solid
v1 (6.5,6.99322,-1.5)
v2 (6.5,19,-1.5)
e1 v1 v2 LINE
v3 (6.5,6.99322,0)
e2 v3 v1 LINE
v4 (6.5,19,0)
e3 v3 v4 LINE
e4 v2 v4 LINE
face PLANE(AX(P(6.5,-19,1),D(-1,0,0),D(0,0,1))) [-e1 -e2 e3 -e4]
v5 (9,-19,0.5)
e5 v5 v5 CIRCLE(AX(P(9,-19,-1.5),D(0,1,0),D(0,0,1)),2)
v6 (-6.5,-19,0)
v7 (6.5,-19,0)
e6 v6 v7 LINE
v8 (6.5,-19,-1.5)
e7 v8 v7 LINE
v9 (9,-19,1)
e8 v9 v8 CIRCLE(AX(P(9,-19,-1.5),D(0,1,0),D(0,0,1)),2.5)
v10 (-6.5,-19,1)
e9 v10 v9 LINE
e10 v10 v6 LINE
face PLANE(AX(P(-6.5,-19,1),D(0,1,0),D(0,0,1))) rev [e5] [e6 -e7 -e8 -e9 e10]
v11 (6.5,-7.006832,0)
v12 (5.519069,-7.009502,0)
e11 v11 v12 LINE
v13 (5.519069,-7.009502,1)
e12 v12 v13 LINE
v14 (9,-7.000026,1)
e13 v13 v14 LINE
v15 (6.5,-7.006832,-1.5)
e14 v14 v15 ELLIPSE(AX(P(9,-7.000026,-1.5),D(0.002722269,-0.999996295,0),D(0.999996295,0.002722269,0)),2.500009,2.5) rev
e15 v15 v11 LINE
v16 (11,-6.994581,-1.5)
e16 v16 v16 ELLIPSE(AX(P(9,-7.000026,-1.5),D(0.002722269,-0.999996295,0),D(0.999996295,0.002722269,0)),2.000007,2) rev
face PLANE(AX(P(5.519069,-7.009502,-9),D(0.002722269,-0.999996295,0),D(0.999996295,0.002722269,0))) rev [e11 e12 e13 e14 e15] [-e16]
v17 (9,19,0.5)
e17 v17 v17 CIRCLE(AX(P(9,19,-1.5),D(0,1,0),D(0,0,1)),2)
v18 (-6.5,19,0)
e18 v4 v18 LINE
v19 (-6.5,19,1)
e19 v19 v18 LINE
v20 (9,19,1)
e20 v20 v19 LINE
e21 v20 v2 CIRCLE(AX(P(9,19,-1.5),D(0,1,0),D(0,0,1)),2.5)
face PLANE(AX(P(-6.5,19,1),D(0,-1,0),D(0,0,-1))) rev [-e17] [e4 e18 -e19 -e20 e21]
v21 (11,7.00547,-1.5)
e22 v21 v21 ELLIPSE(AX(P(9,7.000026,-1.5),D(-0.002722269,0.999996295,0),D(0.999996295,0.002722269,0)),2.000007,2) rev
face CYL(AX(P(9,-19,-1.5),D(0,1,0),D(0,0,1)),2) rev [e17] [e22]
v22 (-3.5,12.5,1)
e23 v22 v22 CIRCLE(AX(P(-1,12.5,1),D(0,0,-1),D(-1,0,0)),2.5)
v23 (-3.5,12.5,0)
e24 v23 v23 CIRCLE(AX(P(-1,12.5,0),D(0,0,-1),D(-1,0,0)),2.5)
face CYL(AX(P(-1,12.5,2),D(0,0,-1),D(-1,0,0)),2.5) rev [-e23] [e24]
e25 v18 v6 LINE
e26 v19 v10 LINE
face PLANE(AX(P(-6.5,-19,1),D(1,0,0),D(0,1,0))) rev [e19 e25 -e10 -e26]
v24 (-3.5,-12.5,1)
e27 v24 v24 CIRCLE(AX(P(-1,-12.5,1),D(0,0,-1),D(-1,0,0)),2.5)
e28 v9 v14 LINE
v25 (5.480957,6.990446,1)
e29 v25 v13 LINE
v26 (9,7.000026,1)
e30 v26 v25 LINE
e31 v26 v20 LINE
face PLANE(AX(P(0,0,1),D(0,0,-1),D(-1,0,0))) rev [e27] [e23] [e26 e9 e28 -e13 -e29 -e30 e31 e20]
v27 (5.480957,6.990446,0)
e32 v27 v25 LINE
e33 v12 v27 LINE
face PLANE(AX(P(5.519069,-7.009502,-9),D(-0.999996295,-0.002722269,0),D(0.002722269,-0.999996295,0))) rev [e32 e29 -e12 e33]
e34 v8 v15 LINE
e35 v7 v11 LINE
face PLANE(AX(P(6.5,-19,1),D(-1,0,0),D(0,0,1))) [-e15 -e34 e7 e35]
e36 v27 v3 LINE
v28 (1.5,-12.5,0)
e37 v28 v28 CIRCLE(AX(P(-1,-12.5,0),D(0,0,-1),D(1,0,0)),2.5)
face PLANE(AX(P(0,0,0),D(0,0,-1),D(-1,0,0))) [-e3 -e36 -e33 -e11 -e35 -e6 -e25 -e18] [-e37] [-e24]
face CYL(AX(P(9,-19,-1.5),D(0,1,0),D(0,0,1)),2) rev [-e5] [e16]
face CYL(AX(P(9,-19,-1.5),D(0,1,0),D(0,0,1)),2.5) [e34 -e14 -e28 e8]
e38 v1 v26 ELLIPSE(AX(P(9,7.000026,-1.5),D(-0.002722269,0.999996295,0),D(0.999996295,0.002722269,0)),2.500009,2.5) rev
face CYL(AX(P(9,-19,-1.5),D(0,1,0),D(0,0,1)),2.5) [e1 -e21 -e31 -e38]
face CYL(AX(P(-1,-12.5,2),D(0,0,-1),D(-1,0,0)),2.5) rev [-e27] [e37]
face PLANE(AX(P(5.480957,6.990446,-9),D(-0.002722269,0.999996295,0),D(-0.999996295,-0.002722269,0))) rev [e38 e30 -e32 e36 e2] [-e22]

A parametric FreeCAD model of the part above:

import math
import FreeCAD as App
import Part
import Sketcher
Q = App.Units.Quantity


def add_polygon(sketch, points):
    """Adds a closed chain of lines whose ends are joined by coincident constraints."""
    first, n = sketch.GeometryCount, len(points)
    for a, b in zip(points, points[1:] + points[:1]):
        sketch.addGeometry(Part.LineSegment(App.Vector(*a, 0), App.Vector(*b, 0)), False)
    for i in range(n):
        sketch.addConstraint(Sketcher.Constraint("Coincident", first + i, 2, first + (i + 1) % n, 1))

doc = App.newDocument("Part")
body = doc.addObject("PartDesign::Body", "Body")

# Sketch on XY plane
sketch1 = body.newObject("Sketcher::SketchObject", "Sketch")
sketch1.AttachmentSupport = (doc.getObject("XY_Plane"), [""])
sketch1.MapMode = "FlatFace"
add_polygon(sketch1, [(-6, 19), (-6, -19), (6, -19), (6, 19)])  # lines 0-3
sketch1.addConstraint(Sketcher.Constraint("Vertical", 0))
sketch1.addConstraint(Sketcher.Constraint("Horizontal", 1))
sketch1.addConstraint(Sketcher.Constraint("Vertical", 2))
sketch1.addConstraint(Sketcher.Constraint("Horizontal", 3))
sketch1.addConstraint(Sketcher.Constraint("Symmetric", 0, 2, 2, 2, -1, 1))
sketch1.addConstraint(Sketcher.Constraint("DistanceX", 1, 1, 1, 2, Q("13 mm")))
sketch1.addConstraint(Sketcher.Constraint("DistanceY", 0, 2, 0, 1, Q("38 mm")))
pad1 = body.newObject("PartDesign::Pad", "Pad")
pad1.Profile = sketch1
pad1.Length = 1

# Sketch on XZ plane
sketch2 = body.newObject("Sketcher::SketchObject", "Sketch001")
sketch2.AttachmentSupport = (doc.getObject("XZ_Plane"), [""])
sketch2.MapMode = "FlatFace"
sketch2.AttachmentOffset = App.Placement(App.Vector(0, 0, -19), App.Rotation())
sketch2.addGeometry(Part.LineSegment(App.Vector(6.5, 1, 0), App.Vector(9, 1, 0)), False)
sketch2.addGeometry(Part.ArcOfCircle(Part.Circle(App.Vector(9, -1.5, 0), App.Vector(0, 0, 1), 2.5), math.radians(180), math.radians(450)), False)
sketch2.addGeometry(Part.LineSegment(App.Vector(6.5, -1.5, 0), App.Vector(6.5, 1, 0)), False)
sketch2.addGeometry(Part.Circle(App.Vector(9, -1.5, 0), App.Vector(0, 0, 1), 2), False)
sketch2.addConstraint(Sketcher.Constraint("Tangent", 0, 2, 1, 2))
sketch2.addConstraint(Sketcher.Constraint("Tangent", 1, 1, 2, 1))
sketch2.addConstraint(Sketcher.Constraint("Coincident", 2, 2, 0, 1))
sketch2.addConstraint(Sketcher.Constraint("Horizontal", 0))
sketch2.addConstraint(Sketcher.Constraint("Vertical", 2))
sketch2.addConstraint(Sketcher.Constraint("Coincident", 3, 3, 1, 3))
sketch2.addConstraint(Sketcher.Constraint("Diameter", 3, Q("4 mm")))
sketch2.addConstraint(Sketcher.Constraint("Radius", 1, Q("2.5 mm")))
sketch2.addConstraint(Sketcher.Constraint("DistanceX", -1, 1, 1, 3, Q("9 mm")))
sketch2.addConstraint(Sketcher.Constraint("DistanceY", -1, 1, 0, 2, Q("1 mm")))
pad2 = body.newObject("PartDesign::Pad", "Pad001")
pad2.Profile = sketch2
pad2.Length = 38

# Sketch on XY plane
sketch3 = body.newObject("Sketcher::SketchObject", "Sketch002")
sketch3.AttachmentSupport = (doc.getObject("XY_Plane"), [""])
sketch3.MapMode = "FlatFace"
sketch3.AttachmentOffset = App.Placement(App.Vector(0, 0, 1), App.Rotation())
add_polygon(sketch3, [(6, -7), (13, -7), (12, 7), (5, 7)])  # lines 0-3
sketch3.addConstraint(Sketcher.Constraint("Perpendicular", 0, 1))
sketch3.addConstraint(Sketcher.Constraint("Perpendicular", 1, 2))
sketch3.addConstraint(Sketcher.Constraint("Perpendicular", 2, 3))
sketch3.addConstraint(Sketcher.Constraint("Distance", 0, Q("7 mm")))
sketch3.addConstraint(Sketcher.Constraint("Distance", 1, Q("14 mm")))
sketch3.addConstraint(Sketcher.Constraint("DistanceX", -1, 1, 1, 2, Q("12.480931 mm")))
sketch3.addConstraint(Sketcher.Constraint("DistanceX", -1, 1, 3, 2, Q("5.519069 mm")))
sketch3.addConstraint(Sketcher.Constraint("DistanceY", 0, 2, -1, 1, Q("6.990446 mm")))
pocket1 = body.newObject("PartDesign::Pocket", "Pocket")
pocket1.Profile = sketch3
pocket1.Length = 10

# Sketch on XY plane
sketch4 = body.newObject("Sketcher::SketchObject", "Sketch003")
sketch4.AttachmentSupport = (doc.getObject("XY_Plane"), [""])
sketch4.MapMode = "FlatFace"
sketch4.addGeometry(Part.Circle(App.Vector(-1, 12.5, 0), App.Vector(0, 0, 1), 2.5), False)
sketch4.addGeometry(Part.Circle(App.Vector(-1, -12.5, 0), App.Vector(0, 0, 1), 2.5), False)
sketch4.addConstraint(Sketcher.Constraint("Equal", 0, 1))
sketch4.addConstraint(Sketcher.Constraint("Symmetric", 0, 3, 1, 3, -1))
sketch4.addConstraint(Sketcher.Constraint("Diameter", 0, Q("5 mm")))
sketch4.addConstraint(Sketcher.Constraint("DistanceX", 0, 3, -1, 1, Q("1 mm")))
sketch4.addConstraint(Sketcher.Constraint("DistanceY", 1, 3, 0, 3, Q("25 mm")))
pocket2 = body.newObject("PartDesign::Pocket", "Pocket001")
pocket2.Profile = sketch4
pocket2.Length = 2
pocket2.Reversed = True

doc.recompute()
